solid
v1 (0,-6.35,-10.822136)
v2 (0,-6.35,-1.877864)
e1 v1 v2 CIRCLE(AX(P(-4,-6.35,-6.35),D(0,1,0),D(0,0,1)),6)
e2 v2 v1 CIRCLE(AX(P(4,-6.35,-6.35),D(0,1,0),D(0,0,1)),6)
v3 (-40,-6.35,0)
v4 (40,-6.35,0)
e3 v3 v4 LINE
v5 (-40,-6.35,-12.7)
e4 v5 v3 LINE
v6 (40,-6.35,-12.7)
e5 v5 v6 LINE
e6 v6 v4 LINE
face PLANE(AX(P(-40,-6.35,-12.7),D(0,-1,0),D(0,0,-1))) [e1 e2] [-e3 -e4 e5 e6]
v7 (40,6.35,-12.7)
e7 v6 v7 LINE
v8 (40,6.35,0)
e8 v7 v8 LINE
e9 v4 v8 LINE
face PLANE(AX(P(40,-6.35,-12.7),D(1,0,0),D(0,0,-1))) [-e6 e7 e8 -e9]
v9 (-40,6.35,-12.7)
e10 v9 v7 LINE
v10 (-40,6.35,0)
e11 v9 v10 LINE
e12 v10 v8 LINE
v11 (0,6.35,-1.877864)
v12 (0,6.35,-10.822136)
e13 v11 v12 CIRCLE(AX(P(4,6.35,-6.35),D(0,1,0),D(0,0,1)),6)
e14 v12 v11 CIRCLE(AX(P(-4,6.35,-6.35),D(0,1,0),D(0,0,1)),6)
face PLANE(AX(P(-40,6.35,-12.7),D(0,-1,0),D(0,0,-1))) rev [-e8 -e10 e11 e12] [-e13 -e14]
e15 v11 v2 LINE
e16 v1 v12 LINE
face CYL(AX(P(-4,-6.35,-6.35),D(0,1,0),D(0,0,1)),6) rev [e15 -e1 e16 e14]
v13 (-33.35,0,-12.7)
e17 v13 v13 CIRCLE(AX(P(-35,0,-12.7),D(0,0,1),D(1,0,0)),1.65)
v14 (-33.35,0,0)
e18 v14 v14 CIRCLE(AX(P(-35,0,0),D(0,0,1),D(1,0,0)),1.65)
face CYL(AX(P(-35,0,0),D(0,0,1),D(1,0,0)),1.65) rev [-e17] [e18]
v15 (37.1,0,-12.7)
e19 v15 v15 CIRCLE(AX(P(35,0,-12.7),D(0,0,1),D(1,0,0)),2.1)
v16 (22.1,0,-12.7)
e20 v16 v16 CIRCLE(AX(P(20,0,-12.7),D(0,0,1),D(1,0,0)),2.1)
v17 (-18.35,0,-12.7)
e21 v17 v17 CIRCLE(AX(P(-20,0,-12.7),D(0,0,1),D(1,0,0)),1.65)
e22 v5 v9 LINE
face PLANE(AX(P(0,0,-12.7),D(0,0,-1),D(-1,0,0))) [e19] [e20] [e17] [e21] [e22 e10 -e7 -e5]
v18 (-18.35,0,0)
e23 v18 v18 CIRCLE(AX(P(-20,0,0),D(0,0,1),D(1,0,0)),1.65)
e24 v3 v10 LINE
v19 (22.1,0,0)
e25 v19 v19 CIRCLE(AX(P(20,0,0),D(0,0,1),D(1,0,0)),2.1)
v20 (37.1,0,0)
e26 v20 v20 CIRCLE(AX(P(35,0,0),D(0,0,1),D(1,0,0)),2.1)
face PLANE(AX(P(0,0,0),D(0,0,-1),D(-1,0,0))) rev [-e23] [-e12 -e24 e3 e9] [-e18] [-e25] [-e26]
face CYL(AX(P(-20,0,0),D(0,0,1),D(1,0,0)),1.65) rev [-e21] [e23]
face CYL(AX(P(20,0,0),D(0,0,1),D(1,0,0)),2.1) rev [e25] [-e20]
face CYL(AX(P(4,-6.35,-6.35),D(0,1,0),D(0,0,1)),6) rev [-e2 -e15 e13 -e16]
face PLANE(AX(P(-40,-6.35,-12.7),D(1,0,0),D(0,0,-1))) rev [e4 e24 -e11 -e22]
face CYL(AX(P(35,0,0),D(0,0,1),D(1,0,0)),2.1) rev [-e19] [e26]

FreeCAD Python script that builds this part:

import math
import FreeCAD as App
import Part
import Sketcher
from FreeCAD import Vector

doc = App.newDocument("Part")
body = doc.addObject("PartDesign::Body", "Body")

sketch1 = body.newObject("Sketcher::SketchObject", "Sketch")
sketch1.AttachmentSupport = (doc.getObject("XY_Plane"), [""])
sketch1.MapMode = "FlatFace"
sketch1.addGeometry([
    Part.LineSegment(Vector(-40, 6, 0), Vector(-40, -6, 0)),
    Part.LineSegment(Vector(-40, -6, 0), Vector(40, -6, 0)),
    Part.LineSegment(Vector(40, -6, 0), Vector(40, 6, 0)),
    Part.LineSegment(Vector(40, 6, 0), Vector(-40, 6, 0)),
], False)
sketch1.addConstraint([
    Sketcher.Constraint("Coincident", 0, 2, 1, 1),
    Sketcher.Constraint("Coincident", 1, 2, 2, 1),
    Sketcher.Constraint("Coincident", 2, 2, 3, 1),
    Sketcher.Constraint("Coincident", 3, 2, 0, 1),
    Sketcher.Constraint("Vertical", 0),
    Sketcher.Constraint("Horizontal", 1),
    Sketcher.Constraint("Vertical", 2),
    Sketcher.Constraint("Horizontal", 3),
    Sketcher.Constraint("Symmetric", 0, 2, 2, 2, -1, 1),
    Sketcher.Constraint("DistanceX", 1, 1, 1, 2, 80.0),
    Sketcher.Constraint("DistanceY", 0, 2, 0, 1, 12.7),
])
pad1 = body.newObject("PartDesign::Pad", "Pad")
pad1.Profile = sketch1
pad1.Length = 12.7
pad1.Reversed = True

sketch2 = body.newObject("Sketcher::SketchObject", "Sketch001")
sketch2.AttachmentSupport = (doc.getObject("XY_Plane"), [""])
sketch2.MapMode = "FlatFace"
sketch2.addGeometry([
    Part.Circle(Vector(20, 0, 0), Vector(0, 0, 1), 2.1),
    Part.Circle(Vector(35, 0, 0), Vector(0, 0, 1), 2.1),
], False)
sketch2.addConstraint([
    Sketcher.Constraint("Equal", 0, 1),
    Sketcher.Constraint("PointOnObject", 0, 3, -1),
    Sketcher.Constraint("PointOnObject", 1, 3, -1),
    Sketcher.Constraint("Diameter", 0, 4.2),
    Sketcher.Constraint("DistanceX", -1, 1, 0, 3, 20.0),
    Sketcher.Constraint("DistanceX", -1, 1, 1, 3, 35.0),
])
doc.recompute()
hole = body.newObject("PartDesign::Hole", "Hole")
hole.Profile = sketch2
hole.ThreadType = "None"
hole.Diameter = 4.2
hole.DepthType = "ThroughAll"

sketch3 = body.newObject("Sketcher::SketchObject", "Sketch002")
sketch3.AttachmentSupport = (doc.getObject("XY_Plane"), [""])
sketch3.MapMode = "FlatFace"
sketch3.addGeometry([
    Part.Circle(Vector(-35, 0, 0), Vector(0, 0, 1), 1.6),
    Part.Circle(Vector(-20, 0, 0), Vector(0, 0, 1), 1.6),
], False)
sketch3.addConstraint([
    Sketcher.Constraint("Equal", 0, 1),
    Sketcher.Constraint("PointOnObject", 0, 3, -1),
    Sketcher.Constraint("PointOnObject", 1, 3, -1),
    Sketcher.Constraint("Diameter", 0, 3.3),
    Sketcher.Constraint("DistanceX", 0, 3, -1, 1, 35.0),
    Sketcher.Constraint("DistanceX", 1, 3, -1, 1, 20.0),
])
doc.recompute()
hole2 = body.newObject("PartDesign::Hole", "Hole001")
hole2.Profile = sketch3
hole2.ThreadType = "None"
hole2.Diameter = 3.3
hole2.DepthType = "ThroughAll"

sketch4 = body.newObject("Sketcher::SketchObject", "Sketch003")
sketch4.AttachmentSupport = (doc.getObject("XZ_Plane"), [""])
sketch4.MapMode = "FlatFace"
sketch4.AttachmentOffset = App.Placement(Vector(0, 0, -6.35), App.Rotation())
sketch4.addGeometry([
    Part.ArcOfCircle(Part.Circle(Vector(4, -6, 0), Vector(0, 0, 1), 6), math.radians(-132), math.radians(132)),
    Part.ArcOfCircle(Part.Circle(Vector(-4, -6, 0), Vector(0, 0, 1), 6), math.radians(48), math.radians(312)),
], False)
sketch4.addConstraint([
    Sketcher.Constraint("Coincident", 0, 1, 1, 2),
    Sketcher.Constraint("Coincident", 1, 1, 0, 2),
    Sketcher.Constraint("Equal", 0, 1),
    Sketcher.Constraint("Symmetric", 0, 3, 1, 3, -2),
    Sketcher.Constraint("Radius", 0, 6.0),
    Sketcher.Constraint("DistanceX", -1, 1, 0, 3, 4.0),
    Sketcher.Constraint("DistanceY", 0, 3, -1, 1, 6.35),
])
pocket1 = body.newObject("PartDesign::Pocket", "Pocket")
pocket1.Profile = sketch4
pocket1.Type = "ThroughAll"
pocket1.Reversed = True

doc.recompute()
